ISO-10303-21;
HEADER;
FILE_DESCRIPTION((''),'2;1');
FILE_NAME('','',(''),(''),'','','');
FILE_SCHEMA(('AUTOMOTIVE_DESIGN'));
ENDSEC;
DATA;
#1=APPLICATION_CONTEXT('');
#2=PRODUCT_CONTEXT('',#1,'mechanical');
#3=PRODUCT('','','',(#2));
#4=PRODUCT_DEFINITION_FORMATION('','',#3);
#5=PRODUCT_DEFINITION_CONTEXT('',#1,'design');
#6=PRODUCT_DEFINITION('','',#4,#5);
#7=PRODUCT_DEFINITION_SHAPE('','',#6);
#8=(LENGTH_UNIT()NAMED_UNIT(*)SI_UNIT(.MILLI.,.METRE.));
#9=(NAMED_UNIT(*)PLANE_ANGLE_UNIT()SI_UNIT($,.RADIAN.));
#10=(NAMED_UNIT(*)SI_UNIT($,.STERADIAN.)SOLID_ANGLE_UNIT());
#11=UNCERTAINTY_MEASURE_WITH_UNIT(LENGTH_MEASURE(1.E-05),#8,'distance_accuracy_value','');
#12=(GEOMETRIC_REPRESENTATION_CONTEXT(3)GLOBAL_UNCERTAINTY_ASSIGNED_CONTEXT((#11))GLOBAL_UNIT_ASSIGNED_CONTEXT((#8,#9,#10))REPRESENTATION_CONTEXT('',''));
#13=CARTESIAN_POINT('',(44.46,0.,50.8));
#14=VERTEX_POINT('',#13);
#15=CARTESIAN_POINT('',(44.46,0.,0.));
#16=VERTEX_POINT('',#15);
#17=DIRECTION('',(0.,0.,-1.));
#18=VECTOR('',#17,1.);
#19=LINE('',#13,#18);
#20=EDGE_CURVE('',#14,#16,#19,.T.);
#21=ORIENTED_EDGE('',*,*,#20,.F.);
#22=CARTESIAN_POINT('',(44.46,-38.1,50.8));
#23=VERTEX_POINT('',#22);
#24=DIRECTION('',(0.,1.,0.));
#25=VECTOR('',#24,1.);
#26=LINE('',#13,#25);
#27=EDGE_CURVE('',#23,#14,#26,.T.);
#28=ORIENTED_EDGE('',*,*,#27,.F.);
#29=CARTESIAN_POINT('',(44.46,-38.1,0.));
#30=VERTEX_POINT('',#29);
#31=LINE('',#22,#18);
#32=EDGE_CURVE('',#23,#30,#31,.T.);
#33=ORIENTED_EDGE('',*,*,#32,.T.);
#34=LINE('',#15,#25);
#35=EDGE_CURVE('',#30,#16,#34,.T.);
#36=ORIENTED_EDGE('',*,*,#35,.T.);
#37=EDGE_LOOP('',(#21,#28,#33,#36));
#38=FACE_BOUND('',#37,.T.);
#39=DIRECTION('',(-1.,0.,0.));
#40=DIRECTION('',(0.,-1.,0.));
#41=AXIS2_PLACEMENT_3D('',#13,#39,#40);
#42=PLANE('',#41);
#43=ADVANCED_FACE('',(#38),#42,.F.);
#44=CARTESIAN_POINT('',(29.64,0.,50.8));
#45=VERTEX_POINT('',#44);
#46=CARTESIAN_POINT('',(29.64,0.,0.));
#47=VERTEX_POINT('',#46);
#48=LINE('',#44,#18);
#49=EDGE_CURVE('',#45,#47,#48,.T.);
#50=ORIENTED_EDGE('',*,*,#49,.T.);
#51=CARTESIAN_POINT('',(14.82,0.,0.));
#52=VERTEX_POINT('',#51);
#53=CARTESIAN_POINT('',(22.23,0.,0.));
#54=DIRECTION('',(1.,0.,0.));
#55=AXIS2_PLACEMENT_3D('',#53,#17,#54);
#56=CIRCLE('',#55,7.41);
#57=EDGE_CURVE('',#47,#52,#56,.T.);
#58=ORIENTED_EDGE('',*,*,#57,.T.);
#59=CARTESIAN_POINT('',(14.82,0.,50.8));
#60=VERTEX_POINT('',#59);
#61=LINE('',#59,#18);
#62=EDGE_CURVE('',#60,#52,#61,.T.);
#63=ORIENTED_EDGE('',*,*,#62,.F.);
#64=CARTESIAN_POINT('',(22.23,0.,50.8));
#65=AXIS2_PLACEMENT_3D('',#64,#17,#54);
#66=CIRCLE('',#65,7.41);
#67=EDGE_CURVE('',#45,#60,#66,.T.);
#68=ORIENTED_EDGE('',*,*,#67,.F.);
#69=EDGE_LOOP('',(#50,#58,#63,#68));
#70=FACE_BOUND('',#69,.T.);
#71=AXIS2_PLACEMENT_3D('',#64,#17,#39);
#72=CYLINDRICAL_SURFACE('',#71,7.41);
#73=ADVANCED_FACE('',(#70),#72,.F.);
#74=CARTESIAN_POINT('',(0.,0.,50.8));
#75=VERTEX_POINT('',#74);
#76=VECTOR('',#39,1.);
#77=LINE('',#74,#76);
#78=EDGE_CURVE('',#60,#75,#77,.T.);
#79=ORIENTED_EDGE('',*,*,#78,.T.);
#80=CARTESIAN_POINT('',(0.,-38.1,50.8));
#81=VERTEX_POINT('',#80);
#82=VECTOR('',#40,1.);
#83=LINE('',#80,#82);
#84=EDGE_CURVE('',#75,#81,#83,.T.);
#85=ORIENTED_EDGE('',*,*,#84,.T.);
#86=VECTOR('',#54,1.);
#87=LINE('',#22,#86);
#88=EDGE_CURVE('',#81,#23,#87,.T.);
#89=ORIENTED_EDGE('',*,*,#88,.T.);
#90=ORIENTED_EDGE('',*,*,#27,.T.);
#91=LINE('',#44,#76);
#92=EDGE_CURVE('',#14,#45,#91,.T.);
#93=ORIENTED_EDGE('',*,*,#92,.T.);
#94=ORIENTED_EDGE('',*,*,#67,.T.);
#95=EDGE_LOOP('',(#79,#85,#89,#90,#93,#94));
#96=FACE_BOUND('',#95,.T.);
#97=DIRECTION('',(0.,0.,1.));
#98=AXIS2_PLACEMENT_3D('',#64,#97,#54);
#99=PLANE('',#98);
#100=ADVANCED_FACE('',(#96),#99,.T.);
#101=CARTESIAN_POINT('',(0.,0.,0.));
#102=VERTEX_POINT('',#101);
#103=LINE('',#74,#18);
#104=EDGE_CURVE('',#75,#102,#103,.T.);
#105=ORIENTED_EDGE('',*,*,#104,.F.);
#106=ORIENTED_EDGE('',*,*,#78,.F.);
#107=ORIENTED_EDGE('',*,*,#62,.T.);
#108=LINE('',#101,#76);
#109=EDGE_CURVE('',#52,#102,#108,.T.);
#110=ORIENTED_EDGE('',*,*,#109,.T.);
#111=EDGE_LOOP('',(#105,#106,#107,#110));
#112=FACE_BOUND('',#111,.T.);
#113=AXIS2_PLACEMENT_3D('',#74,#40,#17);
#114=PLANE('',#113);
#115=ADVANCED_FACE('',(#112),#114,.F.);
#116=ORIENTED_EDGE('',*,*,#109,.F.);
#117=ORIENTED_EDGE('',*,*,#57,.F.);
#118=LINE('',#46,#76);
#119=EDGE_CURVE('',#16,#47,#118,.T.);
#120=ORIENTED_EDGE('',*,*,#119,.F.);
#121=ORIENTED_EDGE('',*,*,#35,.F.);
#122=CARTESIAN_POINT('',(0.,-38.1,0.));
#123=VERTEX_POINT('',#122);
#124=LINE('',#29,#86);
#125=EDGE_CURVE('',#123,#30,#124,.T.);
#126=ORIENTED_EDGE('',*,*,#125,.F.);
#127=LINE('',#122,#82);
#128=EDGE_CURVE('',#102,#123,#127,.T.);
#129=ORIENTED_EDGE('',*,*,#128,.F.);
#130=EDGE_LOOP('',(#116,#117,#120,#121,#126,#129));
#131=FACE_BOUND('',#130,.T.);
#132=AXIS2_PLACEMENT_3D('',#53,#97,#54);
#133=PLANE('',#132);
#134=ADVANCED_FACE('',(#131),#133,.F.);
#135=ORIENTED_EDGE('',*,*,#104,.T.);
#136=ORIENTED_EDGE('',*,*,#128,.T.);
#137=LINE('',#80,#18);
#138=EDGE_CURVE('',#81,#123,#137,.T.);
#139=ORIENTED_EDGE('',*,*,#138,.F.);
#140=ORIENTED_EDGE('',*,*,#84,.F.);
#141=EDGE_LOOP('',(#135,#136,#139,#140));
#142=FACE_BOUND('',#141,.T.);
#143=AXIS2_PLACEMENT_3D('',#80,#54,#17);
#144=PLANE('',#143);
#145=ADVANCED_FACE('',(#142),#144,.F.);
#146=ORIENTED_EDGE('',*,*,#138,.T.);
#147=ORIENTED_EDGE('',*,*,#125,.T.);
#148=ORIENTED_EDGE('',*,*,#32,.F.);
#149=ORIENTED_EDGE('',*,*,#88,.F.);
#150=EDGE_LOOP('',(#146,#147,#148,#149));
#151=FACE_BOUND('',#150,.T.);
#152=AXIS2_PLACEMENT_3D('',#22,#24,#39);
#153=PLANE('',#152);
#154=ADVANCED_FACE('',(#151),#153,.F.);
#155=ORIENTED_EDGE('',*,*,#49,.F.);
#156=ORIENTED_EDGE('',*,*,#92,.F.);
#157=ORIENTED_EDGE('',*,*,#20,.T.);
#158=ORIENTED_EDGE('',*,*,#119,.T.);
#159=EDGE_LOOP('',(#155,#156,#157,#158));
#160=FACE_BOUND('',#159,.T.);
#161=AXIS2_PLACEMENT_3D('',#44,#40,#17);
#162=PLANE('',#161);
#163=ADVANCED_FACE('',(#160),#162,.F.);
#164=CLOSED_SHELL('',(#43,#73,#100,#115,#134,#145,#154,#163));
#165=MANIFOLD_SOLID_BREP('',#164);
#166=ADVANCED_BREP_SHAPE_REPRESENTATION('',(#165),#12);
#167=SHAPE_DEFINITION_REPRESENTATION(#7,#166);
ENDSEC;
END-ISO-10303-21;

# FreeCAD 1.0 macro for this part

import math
import FreeCAD as App
import Part
import Sketcher
from FreeCAD import Vector
Q = App.Units.Quantity

doc = App.newDocument("Part")
body = doc.addObject("PartDesign::Body", "Body")

sketch1 = body.newObject("Sketcher::SketchObject", "Sketch")
sketch1.AttachmentSupport = (doc.getObject("XY_Plane"), [""])
sketch1.MapMode = "FlatFace"
sketch1.addGeometry(Part.LineSegment(Vector(14.82, 0, 0), Vector(0, 0, 0)), False)
sketch1.addGeometry(Part.LineSegment(Vector(0, 0, 0), Vector(0, -38.1, 0)), False)
sketch1.addGeometry(Part.LineSegment(Vector(0, -38.1, 0), Vector(44.46, -38.1, 0)), False)
sketch1.addGeometry(Part.LineSegment(Vector(44.46, -38.1, 0), Vector(44.46, 0, 0)), False)
sketch1.addGeometry(Part.LineSegment(Vector(44.46, 0, 0), Vector(29.64, 0, 0)), False)
sketch1.addGeometry(Part.ArcOfCircle(Part.Circle(Vector(22.23, 0, 0), Vector(0, 0, 1), 7.41), math.radians(180), math.radians(360)), False)
sketch1.addConstraint(Sketcher.Constraint("Coincident", 0, 2, 1, 1))
sketch1.addConstraint(Sketcher.Constraint("Coincident", 1, 2, 2, 1))
sketch1.addConstraint(Sketcher.Constraint("Coincident", 2, 2, 3, 1))
sketch1.addConstraint(Sketcher.Constraint("Coincident", 3, 2, 4, 1))
sketch1.addConstraint(Sketcher.Constraint("Coincident", 4, 2, 5, 2))
sketch1.addConstraint(Sketcher.Constraint("Coincident", 5, 1, 0, 1))
sketch1.addConstraint(Sketcher.Constraint("Horizontal", 0))
sketch1.addConstraint(Sketcher.Constraint("Vertical", 1))
sketch1.addConstraint(Sketcher.Constraint("Horizontal", 2))
sketch1.addConstraint(Sketcher.Constraint("Vertical", 3))
sketch1.addConstraint(Sketcher.Constraint("Horizontal", 4))
sketch1.addConstraint(Sketcher.Constraint("Coincident", 0, 2, -1, 1))
sketch1.addConstraint(Sketcher.Constraint("PointOnObject", 5, 3, -1))
sketch1.addConstraint(Sketcher.Constraint("PointOnObject", 3, 2, -1))
sketch1.addConstraint(Sketcher.Constraint("Equal", 0, 4))
sketch1.addConstraint(Sketcher.Constraint("DistanceY", 1, 2, 1, 1, Q("1.5 in")))
sketch1.addConstraint(Sketcher.Constraint("Radius", 5, 7.41))
sketch1.addConstraint(Sketcher.Constraint("DistanceX", 0, 2, 0, 1, 14.82))
pad1 = body.newObject("PartDesign::Pad", "Pad")
pad1.Profile = sketch1
pad1.Length = Q("2 in")

doc.recompute()
